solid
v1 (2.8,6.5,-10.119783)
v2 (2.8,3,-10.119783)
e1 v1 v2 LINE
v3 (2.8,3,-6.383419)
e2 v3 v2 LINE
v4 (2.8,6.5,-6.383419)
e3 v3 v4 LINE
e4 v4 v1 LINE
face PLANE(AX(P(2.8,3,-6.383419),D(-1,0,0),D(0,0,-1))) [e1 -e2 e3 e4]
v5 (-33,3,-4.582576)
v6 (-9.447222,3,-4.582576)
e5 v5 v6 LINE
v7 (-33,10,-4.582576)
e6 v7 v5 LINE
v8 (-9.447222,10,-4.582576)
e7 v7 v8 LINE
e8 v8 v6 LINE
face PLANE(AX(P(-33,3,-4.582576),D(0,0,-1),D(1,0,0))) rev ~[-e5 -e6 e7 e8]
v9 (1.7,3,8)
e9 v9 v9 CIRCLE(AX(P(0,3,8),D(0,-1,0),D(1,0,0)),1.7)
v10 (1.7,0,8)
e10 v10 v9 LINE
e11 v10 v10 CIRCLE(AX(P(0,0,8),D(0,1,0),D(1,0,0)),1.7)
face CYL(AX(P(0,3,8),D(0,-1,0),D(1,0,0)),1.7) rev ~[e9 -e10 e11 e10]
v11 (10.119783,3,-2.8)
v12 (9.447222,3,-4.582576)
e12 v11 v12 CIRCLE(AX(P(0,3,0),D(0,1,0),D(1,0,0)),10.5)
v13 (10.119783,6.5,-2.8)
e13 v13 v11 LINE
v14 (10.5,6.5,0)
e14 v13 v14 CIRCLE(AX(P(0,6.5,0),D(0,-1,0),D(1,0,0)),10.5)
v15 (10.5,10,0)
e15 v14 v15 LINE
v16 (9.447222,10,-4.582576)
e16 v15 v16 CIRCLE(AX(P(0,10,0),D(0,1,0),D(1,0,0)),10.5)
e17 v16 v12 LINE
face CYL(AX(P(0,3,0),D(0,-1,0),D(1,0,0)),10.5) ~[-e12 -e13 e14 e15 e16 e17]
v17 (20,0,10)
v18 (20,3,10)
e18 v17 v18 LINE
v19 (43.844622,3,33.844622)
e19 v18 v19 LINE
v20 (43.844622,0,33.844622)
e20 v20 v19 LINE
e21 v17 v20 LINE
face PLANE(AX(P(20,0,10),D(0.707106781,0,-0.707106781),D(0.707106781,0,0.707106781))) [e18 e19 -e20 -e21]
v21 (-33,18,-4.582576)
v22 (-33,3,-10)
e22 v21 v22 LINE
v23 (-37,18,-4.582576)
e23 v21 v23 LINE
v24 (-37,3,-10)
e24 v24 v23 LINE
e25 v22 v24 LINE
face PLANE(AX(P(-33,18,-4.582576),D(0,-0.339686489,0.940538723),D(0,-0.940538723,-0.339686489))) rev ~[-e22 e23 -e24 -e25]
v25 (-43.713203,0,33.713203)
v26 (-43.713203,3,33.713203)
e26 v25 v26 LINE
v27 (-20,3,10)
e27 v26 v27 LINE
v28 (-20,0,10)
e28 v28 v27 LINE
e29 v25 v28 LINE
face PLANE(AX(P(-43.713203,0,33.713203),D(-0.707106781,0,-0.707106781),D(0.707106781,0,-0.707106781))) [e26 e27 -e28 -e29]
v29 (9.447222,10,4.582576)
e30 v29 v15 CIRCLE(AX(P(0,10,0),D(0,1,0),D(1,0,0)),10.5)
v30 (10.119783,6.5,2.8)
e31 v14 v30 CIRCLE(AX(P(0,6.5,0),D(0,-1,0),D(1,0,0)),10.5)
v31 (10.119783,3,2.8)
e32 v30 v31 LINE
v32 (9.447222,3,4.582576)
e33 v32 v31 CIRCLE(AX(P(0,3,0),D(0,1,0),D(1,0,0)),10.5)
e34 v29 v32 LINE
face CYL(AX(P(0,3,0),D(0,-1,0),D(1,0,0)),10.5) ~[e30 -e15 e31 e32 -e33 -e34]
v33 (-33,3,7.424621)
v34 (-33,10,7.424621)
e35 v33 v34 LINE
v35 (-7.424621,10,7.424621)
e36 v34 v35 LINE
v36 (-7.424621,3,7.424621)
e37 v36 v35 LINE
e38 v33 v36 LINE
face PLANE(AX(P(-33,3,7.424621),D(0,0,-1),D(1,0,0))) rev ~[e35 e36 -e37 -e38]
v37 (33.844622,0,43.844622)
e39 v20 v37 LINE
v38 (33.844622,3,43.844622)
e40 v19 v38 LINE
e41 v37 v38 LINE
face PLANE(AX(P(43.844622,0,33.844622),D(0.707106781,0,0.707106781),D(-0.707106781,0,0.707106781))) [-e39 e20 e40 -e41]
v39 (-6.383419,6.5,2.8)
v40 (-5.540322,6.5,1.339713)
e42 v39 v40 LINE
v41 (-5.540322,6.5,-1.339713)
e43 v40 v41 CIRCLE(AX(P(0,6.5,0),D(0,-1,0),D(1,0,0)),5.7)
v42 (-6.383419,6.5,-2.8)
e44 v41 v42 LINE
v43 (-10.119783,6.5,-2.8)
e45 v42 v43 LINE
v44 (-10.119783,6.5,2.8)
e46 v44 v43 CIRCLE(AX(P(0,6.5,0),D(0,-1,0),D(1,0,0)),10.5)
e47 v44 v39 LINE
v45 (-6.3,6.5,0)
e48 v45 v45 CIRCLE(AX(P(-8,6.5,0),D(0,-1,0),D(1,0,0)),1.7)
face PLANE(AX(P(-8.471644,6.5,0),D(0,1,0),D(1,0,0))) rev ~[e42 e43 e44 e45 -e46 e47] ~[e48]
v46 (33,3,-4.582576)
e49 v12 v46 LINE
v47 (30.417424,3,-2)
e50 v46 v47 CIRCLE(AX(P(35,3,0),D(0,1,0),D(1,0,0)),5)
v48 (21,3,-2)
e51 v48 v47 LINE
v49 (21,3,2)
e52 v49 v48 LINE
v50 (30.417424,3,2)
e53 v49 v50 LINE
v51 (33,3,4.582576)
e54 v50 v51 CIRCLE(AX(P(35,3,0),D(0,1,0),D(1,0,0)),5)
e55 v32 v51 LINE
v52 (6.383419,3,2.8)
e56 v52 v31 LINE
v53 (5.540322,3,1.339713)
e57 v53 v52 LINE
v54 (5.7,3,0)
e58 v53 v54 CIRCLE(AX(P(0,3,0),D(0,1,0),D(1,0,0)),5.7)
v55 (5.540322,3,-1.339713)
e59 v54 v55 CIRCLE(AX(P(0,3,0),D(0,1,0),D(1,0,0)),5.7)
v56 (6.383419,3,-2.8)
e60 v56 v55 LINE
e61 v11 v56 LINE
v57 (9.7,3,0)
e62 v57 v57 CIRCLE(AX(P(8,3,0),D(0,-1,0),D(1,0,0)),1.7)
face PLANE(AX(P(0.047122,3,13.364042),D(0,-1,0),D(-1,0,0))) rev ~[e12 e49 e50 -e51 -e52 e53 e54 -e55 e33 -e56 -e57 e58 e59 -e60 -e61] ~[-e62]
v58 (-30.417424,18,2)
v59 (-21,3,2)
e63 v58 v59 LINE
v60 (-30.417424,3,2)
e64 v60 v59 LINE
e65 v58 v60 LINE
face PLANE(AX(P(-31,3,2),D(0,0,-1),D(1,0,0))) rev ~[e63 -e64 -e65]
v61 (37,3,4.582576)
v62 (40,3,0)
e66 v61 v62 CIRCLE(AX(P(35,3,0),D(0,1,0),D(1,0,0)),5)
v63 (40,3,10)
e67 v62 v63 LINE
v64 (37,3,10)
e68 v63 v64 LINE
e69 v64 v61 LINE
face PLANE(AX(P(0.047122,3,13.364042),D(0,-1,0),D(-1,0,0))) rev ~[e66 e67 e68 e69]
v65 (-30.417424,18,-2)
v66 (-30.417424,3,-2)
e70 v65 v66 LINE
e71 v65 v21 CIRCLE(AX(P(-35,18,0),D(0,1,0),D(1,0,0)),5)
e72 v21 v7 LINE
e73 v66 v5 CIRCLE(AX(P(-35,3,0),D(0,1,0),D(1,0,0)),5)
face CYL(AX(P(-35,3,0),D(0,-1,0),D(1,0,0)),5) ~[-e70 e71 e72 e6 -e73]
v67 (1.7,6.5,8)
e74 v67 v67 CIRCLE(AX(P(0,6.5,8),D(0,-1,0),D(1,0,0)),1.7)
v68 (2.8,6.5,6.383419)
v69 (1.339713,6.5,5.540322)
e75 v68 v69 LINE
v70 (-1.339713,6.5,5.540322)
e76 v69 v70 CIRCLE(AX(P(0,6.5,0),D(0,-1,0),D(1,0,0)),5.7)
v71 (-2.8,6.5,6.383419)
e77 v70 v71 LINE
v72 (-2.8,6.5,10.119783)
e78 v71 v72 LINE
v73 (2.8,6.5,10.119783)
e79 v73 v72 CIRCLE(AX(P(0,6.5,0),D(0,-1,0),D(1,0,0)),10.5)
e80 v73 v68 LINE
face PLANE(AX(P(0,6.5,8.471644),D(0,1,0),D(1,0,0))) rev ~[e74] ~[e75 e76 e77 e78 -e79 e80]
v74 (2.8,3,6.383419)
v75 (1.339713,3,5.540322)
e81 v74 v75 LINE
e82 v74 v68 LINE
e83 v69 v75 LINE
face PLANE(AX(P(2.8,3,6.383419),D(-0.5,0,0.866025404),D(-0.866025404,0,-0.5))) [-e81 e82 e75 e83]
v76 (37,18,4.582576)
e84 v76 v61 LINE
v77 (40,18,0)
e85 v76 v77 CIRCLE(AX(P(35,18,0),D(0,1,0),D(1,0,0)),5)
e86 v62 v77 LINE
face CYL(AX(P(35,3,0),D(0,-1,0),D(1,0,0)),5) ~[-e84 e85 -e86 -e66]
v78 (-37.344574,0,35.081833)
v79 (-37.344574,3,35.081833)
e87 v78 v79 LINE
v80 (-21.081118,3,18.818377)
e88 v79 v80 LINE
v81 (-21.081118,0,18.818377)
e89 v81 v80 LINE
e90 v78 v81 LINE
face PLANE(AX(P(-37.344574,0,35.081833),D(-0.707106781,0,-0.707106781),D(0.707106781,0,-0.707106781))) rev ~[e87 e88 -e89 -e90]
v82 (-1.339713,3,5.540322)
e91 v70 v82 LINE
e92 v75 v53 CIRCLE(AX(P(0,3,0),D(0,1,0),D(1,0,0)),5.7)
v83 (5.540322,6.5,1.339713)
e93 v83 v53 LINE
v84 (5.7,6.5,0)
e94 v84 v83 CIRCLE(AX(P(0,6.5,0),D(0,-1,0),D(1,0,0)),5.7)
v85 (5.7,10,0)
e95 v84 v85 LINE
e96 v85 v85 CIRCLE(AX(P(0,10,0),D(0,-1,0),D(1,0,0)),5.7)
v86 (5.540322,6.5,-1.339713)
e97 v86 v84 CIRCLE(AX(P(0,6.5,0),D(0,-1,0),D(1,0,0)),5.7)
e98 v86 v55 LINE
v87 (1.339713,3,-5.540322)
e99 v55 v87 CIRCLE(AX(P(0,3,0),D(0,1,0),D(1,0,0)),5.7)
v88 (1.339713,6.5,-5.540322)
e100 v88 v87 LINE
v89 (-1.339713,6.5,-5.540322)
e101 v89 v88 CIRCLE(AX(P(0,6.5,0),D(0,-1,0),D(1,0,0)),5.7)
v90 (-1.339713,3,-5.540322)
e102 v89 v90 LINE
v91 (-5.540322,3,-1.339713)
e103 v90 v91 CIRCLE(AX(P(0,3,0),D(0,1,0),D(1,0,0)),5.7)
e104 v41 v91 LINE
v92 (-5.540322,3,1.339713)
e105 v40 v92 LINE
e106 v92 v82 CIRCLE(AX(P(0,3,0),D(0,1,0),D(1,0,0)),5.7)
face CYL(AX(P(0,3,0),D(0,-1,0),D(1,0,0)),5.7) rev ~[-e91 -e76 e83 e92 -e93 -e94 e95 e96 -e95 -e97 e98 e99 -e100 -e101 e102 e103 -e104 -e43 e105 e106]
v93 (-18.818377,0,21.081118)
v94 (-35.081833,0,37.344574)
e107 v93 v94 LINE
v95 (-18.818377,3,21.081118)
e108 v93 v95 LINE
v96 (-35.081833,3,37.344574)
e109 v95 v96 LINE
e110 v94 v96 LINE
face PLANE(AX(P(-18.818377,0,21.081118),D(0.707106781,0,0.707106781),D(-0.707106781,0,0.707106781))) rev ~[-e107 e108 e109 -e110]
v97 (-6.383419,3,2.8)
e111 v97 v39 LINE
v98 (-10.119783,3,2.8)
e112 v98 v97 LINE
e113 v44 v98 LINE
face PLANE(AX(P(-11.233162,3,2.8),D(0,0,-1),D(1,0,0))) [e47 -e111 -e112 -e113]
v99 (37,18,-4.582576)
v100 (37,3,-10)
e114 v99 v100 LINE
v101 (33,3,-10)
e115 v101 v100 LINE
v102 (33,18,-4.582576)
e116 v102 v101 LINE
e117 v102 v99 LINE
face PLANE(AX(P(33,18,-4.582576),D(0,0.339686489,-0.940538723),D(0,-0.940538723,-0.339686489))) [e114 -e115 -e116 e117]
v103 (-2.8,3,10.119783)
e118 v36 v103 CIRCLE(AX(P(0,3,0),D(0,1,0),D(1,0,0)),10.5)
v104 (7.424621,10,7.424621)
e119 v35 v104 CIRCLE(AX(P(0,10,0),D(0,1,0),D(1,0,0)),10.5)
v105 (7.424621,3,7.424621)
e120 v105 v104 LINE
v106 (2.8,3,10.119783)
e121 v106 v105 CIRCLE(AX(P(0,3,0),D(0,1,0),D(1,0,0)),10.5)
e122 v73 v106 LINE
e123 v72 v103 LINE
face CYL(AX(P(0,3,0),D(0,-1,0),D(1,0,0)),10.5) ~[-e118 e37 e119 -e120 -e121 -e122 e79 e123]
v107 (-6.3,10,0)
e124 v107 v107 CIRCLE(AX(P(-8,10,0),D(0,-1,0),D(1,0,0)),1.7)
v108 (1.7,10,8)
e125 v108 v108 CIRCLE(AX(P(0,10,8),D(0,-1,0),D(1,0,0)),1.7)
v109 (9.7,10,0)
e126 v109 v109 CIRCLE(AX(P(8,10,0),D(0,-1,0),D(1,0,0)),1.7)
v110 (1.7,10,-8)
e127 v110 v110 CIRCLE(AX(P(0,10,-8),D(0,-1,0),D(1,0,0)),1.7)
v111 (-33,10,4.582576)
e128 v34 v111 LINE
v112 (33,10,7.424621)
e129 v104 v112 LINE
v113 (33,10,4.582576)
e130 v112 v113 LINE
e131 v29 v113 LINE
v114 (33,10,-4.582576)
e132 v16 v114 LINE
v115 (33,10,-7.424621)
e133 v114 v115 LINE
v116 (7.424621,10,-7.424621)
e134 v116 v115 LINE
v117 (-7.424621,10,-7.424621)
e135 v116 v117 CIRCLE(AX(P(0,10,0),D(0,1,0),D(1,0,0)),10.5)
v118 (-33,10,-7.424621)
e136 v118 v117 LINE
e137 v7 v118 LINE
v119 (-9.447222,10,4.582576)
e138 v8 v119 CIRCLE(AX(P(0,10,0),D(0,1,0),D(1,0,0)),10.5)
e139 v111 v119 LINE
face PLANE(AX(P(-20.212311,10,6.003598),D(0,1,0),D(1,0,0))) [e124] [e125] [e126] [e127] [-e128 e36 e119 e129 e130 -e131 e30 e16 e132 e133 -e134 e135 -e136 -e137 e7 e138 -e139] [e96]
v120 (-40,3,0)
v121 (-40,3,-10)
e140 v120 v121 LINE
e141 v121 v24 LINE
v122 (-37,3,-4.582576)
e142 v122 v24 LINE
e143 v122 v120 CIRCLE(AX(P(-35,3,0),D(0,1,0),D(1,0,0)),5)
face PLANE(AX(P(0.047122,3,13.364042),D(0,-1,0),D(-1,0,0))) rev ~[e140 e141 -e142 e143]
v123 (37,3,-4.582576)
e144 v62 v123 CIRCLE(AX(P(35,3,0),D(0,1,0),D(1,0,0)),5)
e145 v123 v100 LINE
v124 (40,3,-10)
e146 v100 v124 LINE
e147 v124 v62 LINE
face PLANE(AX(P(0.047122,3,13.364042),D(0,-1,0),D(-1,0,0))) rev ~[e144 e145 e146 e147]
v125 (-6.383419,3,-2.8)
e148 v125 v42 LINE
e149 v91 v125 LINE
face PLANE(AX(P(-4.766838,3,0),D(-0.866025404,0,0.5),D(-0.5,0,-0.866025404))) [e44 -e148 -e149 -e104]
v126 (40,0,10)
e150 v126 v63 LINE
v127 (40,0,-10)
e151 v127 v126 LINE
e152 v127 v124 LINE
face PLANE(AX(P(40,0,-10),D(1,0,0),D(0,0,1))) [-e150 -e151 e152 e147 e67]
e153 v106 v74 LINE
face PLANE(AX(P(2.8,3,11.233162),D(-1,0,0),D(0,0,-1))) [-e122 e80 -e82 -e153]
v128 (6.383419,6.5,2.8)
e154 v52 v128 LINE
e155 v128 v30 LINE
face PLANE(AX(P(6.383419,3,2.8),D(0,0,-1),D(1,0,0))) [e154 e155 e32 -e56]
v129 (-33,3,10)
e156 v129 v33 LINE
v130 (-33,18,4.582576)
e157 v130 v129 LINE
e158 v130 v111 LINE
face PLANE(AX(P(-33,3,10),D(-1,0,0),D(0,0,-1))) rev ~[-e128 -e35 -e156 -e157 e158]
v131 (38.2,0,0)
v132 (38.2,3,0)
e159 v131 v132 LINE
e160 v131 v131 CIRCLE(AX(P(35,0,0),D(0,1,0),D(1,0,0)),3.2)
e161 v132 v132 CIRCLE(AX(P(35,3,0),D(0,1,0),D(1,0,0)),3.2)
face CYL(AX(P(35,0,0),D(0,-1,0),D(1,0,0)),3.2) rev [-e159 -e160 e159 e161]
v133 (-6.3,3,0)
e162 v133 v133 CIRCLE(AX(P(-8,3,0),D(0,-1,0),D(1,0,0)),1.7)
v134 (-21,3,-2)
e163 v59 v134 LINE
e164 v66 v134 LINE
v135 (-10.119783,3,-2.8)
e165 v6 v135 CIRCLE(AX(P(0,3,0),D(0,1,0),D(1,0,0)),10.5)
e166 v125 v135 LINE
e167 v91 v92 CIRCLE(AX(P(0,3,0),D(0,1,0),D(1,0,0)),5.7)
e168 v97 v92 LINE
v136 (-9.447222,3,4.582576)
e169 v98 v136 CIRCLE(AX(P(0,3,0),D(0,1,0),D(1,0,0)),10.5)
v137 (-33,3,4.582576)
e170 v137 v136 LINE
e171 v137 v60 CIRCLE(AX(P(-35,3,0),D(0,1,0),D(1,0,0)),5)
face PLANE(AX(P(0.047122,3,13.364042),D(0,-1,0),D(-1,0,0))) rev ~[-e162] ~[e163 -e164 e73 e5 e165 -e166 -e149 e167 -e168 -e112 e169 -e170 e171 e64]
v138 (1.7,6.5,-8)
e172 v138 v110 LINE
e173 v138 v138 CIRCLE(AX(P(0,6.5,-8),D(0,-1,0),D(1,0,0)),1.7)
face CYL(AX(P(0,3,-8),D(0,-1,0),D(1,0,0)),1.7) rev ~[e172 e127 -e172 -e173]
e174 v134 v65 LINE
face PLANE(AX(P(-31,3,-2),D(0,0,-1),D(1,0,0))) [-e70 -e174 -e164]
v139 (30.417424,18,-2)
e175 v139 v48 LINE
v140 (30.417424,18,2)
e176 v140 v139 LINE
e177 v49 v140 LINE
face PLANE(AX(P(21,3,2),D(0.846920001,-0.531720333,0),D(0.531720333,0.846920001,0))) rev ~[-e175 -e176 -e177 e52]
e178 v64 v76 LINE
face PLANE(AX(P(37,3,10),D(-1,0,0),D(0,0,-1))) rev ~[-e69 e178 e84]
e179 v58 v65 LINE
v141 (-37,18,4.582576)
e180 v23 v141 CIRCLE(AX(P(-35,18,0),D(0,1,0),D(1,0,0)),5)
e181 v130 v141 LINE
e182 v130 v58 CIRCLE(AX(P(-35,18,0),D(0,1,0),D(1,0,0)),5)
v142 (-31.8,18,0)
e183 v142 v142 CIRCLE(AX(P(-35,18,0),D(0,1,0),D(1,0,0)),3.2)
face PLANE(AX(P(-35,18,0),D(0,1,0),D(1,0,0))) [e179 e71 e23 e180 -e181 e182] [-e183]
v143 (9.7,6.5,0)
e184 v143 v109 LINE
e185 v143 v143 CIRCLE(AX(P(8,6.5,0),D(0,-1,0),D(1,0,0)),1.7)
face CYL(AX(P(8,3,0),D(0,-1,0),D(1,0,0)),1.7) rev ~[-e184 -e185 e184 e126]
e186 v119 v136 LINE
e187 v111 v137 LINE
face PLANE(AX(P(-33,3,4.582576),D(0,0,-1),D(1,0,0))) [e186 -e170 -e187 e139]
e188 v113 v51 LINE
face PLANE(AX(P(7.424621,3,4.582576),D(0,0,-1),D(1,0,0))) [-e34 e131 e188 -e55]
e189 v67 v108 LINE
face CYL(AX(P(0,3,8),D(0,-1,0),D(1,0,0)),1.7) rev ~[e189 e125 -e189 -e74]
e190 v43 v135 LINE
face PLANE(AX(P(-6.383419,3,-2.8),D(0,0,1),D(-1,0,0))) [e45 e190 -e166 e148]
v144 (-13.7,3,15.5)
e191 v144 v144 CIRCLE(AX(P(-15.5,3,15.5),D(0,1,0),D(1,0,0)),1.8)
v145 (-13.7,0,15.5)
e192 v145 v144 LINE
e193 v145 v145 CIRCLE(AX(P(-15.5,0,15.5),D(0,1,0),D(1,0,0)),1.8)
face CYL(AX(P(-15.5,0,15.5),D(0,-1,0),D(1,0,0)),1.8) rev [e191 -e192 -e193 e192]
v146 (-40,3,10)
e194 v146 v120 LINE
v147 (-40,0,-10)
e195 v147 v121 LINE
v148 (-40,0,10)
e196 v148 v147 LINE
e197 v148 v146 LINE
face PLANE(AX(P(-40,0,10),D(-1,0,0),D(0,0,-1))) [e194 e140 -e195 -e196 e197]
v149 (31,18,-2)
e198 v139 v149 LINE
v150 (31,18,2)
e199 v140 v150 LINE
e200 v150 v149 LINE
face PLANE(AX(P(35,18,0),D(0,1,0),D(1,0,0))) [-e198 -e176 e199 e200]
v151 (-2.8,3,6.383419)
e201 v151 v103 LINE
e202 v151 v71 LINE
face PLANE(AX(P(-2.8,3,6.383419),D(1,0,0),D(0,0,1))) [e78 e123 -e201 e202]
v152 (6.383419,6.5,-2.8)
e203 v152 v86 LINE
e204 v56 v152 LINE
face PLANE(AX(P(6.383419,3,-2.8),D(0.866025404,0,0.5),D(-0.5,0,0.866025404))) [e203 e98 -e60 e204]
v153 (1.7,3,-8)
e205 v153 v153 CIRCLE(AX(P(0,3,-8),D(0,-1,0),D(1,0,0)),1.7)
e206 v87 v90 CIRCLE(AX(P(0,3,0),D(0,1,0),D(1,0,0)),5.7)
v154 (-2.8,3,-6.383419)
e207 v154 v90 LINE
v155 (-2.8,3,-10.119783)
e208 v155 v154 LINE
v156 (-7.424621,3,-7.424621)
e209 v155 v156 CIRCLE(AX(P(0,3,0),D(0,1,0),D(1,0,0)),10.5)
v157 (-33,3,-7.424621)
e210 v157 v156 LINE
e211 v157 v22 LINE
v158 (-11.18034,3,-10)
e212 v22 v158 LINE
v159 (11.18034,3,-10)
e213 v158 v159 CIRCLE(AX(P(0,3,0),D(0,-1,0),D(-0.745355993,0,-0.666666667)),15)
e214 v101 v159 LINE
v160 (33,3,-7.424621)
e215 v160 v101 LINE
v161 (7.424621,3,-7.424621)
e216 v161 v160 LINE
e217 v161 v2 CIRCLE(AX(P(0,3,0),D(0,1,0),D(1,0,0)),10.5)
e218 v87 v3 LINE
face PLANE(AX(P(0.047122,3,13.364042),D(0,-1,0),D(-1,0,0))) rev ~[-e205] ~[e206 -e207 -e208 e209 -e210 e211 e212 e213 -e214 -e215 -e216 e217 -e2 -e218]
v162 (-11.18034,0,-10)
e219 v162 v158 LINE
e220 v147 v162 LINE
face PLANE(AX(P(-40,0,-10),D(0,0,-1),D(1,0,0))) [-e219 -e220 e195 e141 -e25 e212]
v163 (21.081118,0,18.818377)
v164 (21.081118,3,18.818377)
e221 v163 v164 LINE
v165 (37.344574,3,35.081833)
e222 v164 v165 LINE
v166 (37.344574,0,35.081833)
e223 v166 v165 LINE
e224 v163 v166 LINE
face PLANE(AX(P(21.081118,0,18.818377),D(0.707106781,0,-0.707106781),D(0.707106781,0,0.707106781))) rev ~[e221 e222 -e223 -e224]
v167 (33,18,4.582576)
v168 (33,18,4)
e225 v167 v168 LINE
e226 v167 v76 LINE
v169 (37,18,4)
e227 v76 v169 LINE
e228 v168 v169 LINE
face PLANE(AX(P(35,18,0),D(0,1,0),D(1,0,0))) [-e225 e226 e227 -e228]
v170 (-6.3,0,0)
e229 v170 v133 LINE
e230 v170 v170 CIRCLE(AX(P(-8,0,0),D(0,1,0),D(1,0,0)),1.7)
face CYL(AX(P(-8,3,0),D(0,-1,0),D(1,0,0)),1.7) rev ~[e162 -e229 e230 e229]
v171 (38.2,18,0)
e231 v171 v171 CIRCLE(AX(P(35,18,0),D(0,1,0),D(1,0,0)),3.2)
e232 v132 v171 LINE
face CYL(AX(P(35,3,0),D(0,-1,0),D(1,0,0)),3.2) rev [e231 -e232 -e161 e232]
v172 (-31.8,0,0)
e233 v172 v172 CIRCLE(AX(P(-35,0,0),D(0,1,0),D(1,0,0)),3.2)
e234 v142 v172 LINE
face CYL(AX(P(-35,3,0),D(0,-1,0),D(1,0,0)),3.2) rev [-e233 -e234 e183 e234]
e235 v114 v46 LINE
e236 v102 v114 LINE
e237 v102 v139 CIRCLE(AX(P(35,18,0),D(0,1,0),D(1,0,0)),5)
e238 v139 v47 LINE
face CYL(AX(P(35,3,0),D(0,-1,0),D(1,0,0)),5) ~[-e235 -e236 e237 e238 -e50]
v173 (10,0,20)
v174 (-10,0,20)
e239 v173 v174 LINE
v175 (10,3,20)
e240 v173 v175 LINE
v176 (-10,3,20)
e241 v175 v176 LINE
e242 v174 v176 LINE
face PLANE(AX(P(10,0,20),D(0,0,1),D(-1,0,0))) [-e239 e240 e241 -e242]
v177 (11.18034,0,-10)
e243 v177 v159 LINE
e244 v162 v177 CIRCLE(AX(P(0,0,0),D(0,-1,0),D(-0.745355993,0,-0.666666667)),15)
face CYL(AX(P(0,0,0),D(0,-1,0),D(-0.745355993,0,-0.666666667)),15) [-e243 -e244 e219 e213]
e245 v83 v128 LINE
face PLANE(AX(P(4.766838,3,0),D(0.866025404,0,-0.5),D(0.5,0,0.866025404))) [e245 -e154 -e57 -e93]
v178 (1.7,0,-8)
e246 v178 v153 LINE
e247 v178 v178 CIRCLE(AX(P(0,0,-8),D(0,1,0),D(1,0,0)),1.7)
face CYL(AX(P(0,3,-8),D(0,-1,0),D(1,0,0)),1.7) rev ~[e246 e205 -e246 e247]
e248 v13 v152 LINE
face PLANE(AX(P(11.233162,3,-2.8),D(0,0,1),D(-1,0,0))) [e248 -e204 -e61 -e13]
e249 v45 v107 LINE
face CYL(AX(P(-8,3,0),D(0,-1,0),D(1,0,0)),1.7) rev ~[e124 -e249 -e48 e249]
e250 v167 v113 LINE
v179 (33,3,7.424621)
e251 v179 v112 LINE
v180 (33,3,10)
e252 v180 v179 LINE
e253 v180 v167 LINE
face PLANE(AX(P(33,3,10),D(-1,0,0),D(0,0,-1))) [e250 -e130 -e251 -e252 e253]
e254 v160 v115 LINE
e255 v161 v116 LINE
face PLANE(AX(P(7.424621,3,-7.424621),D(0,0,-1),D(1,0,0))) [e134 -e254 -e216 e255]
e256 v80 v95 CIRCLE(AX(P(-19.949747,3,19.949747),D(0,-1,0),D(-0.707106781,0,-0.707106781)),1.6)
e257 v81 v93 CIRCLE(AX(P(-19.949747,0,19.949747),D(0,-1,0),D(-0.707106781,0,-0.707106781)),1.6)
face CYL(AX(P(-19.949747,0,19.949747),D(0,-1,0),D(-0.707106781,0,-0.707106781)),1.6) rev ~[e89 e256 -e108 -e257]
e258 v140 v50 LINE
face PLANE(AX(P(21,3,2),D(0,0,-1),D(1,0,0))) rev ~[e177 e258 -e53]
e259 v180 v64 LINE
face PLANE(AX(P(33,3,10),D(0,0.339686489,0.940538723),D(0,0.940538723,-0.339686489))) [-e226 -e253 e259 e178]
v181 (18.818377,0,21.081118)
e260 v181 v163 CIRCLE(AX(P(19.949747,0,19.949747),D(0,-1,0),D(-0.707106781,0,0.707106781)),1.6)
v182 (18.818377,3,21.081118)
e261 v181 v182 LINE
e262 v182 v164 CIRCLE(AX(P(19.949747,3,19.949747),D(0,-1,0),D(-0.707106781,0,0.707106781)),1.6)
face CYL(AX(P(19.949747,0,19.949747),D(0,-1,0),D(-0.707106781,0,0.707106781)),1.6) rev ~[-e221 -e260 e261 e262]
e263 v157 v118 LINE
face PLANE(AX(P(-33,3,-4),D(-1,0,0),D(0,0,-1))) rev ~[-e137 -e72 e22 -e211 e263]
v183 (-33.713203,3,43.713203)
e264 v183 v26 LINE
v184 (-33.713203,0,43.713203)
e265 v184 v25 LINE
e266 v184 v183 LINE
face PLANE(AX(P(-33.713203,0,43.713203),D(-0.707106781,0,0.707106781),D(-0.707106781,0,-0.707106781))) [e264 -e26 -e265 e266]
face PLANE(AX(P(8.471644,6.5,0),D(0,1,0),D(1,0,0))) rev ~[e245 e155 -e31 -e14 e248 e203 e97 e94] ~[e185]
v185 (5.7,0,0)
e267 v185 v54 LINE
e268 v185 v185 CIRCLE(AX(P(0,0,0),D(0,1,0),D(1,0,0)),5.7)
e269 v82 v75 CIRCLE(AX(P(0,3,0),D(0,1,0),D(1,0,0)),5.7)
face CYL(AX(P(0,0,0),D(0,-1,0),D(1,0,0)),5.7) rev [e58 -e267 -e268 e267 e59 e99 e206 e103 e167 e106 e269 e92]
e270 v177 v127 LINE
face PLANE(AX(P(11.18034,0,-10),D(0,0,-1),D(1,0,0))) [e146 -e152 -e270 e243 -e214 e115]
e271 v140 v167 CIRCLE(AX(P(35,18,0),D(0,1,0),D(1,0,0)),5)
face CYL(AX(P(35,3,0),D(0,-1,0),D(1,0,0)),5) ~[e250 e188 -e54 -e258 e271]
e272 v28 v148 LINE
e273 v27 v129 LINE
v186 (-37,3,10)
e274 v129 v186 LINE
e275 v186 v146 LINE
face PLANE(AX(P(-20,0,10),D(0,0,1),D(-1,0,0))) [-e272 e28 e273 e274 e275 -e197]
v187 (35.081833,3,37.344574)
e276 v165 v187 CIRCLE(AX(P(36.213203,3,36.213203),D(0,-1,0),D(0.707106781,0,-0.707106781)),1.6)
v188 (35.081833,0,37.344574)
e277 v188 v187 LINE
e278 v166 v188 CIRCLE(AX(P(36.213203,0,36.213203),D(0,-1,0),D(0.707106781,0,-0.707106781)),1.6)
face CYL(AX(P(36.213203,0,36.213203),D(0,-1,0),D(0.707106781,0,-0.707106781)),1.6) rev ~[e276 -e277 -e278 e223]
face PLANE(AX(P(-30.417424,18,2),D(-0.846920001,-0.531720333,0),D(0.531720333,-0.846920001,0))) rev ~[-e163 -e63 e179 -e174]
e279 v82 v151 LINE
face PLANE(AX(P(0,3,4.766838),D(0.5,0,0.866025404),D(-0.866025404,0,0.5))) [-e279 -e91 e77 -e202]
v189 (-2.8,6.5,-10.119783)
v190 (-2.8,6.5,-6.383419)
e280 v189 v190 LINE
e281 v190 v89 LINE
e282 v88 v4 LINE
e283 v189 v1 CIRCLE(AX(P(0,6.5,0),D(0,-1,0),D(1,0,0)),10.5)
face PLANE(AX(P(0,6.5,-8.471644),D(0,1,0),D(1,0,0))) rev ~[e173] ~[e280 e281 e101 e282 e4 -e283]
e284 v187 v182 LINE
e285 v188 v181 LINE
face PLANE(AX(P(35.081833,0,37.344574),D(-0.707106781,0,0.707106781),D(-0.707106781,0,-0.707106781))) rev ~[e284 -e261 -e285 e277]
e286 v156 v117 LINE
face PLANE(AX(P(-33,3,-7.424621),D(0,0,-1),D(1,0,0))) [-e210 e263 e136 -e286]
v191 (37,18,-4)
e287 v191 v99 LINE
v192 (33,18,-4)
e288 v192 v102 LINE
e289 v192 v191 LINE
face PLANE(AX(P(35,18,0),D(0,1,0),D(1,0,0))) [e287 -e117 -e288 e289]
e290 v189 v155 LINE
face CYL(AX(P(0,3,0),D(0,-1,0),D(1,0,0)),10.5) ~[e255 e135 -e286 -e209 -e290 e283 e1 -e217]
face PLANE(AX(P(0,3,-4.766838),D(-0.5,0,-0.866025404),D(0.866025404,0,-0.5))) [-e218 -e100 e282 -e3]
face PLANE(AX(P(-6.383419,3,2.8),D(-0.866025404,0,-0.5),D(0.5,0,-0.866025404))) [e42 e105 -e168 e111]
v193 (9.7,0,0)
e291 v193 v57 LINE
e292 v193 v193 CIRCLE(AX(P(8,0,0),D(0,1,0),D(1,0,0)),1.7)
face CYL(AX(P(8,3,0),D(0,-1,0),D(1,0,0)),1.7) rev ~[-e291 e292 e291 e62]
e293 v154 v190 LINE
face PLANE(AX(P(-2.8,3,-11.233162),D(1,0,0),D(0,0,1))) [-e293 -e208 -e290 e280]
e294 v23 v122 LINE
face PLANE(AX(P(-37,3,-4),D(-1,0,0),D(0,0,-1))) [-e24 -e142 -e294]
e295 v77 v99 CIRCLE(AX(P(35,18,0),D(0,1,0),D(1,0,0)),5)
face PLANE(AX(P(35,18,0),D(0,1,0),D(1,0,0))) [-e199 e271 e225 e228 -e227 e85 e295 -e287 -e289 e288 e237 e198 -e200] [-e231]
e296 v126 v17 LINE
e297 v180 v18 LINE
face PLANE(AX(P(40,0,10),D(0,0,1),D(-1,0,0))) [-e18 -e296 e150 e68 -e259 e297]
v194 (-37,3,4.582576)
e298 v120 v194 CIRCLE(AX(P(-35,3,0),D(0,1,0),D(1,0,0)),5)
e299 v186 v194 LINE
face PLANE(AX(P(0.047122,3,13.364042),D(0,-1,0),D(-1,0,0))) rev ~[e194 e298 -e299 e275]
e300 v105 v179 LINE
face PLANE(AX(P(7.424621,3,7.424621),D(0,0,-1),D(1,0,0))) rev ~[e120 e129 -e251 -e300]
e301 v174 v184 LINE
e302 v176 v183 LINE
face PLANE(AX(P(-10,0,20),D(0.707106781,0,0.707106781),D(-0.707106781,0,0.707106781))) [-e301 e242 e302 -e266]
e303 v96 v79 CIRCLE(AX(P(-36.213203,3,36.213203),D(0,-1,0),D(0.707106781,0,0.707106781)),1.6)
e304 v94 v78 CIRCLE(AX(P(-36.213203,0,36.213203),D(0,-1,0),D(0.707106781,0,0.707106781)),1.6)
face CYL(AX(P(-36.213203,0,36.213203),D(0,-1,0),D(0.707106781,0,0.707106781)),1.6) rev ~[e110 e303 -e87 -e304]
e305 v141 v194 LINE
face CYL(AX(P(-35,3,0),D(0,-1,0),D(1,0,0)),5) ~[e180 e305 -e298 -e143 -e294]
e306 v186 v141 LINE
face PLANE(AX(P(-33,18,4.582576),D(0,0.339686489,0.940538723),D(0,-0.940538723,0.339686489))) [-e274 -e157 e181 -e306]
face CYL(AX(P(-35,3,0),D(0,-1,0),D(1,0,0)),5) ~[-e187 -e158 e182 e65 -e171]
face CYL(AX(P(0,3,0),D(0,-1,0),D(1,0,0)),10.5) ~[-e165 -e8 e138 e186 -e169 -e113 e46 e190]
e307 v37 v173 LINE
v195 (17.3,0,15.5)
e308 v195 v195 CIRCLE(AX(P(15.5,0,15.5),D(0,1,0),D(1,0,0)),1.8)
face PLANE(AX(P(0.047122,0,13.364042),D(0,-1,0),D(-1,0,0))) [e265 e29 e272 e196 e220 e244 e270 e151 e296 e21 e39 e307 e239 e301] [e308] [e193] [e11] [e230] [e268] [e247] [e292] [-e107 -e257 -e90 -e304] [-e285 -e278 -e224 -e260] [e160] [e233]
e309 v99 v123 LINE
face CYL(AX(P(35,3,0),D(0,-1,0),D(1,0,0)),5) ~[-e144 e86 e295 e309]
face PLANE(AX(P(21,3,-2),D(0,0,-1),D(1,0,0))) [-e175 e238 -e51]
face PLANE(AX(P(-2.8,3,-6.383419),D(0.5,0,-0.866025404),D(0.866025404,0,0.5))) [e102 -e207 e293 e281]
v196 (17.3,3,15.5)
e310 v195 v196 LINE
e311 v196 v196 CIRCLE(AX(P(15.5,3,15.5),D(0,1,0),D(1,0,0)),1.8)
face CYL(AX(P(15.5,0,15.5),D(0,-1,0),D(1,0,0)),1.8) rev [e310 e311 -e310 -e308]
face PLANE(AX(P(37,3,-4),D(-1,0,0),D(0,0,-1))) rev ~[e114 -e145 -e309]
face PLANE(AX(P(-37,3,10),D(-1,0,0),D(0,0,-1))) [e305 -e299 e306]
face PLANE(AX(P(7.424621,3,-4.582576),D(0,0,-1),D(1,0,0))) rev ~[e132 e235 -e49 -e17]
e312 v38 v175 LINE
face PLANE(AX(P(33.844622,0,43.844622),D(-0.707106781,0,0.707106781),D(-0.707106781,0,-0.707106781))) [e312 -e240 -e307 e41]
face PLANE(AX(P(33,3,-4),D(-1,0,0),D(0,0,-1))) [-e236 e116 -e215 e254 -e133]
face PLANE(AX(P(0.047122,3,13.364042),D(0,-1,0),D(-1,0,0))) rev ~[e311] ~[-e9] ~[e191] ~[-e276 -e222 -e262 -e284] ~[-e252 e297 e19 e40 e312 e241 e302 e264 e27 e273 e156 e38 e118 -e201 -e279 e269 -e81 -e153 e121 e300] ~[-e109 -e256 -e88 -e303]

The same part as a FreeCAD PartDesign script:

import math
import FreeCAD as App
import Part
import Sketcher
Q = App.Units.Quantity


def add_polygon(sketch, points):
    """Adds a closed chain of lines whose ends are joined by coincident constraints."""
    first, n = sketch.GeometryCount, len(points)
    for a, b in zip(points, points[1:] + points[:1]):
        sketch.addGeometry(Part.LineSegment(App.Vector(*a, 0), App.Vector(*b, 0)), False)
    for i in range(n):
        sketch.addConstraint(Sketcher.Constraint("Coincident", first + i, 2, first + (i + 1) % n, 1))

doc = App.newDocument("Part")
body = doc.addObject("PartDesign::Body", "Body")

# Sketch on XZ plane
sketch1 = body.newObject("Sketcher::SketchObject", "Sketch")
sketch1.AttachmentSupport = (doc.getObject("XZ_Plane"), [""])
sketch1.MapMode = "FlatFace"
sketch1.addGeometry([
    Part.LineSegment(App.Vector(-40, -10, 0), App.Vector(-40, 10, 0)),  # 0
    Part.LineSegment(App.Vector(-40, 10, 0), App.Vector(-20, 10, 0)),  # 1
    Part.LineSegment(App.Vector(-20, 10, 0), App.Vector(-43.7, 33.7, 0)),  # 2
    Part.LineSegment(App.Vector(-43.7, 33.7, 0), App.Vector(-33.7, 43.7, 0)),  # 3
    Part.LineSegment(App.Vector(-33.7, 43.7, 0), App.Vector(-10, 20, 0)),  # 4
    Part.LineSegment(App.Vector(-10, 20, 0), App.Vector(10, 20, 0)),  # 5
    Part.LineSegment(App.Vector(10, 20, 0), App.Vector(33.8, 43.8, 0)),  # 6
    Part.LineSegment(App.Vector(33.8, 43.8, 0), App.Vector(43.8, 33.8, 0)),  # 7
    Part.LineSegment(App.Vector(43.8, 33.8, 0), App.Vector(20, 10, 0)),  # 8
    Part.LineSegment(App.Vector(20, 10, 0), App.Vector(40, 10, 0)),  # 9
    Part.LineSegment(App.Vector(40, 10, 0), App.Vector(40, -10, 0)),  # 10
    Part.LineSegment(App.Vector(40, -10, 0), App.Vector(11.2, -10, 0)),  # 11
    Part.ArcOfCircle(Part.Circle(App.Vector(0, 0, 0), App.Vector(0, 0, 1), 15), math.radians(-138), math.radians(-42)),  # 12
    Part.LineSegment(App.Vector(-11.2, -10, 0), App.Vector(-40, -10, 0)),  # 13
    Part.LineSegment(App.Vector(21.1, 18.8, 0), App.Vector(37.3, 35.1, 0)),  # 14
    Part.ArcOfCircle(Part.Circle(App.Vector(36.2, 36.2, 0), App.Vector(0, 0, 1), 1.6), math.radians(-45), math.radians(135)),  # 15
    Part.LineSegment(App.Vector(35.1, 37.3, 0), App.Vector(18.8, 21.1, 0)),  # 16
    Part.ArcOfCircle(Part.Circle(App.Vector(19.9, 19.9, 0), App.Vector(0, 0, 1), 1.6), math.radians(135), math.radians(315)),  # 17
    Part.Circle(App.Vector(15.5, 15.5, 0), App.Vector(0, 0, 1), 1.8),  # 18
    Part.LineSegment(App.Vector(-18.8, 21.1, 0), App.Vector(-35.1, 37.3, 0)),  # 19
    Part.ArcOfCircle(Part.Circle(App.Vector(-36.2, 36.2, 0), App.Vector(0, 0, 1), 1.6), math.radians(45), math.radians(225)),  # 20
    Part.LineSegment(App.Vector(-37.3, 35.1, 0), App.Vector(-21.1, 18.8, 0)),  # 21
    Part.ArcOfCircle(Part.Circle(App.Vector(-19.9, 19.9, 0), App.Vector(0, 0, 1), 1.6), math.radians(-135), math.radians(45)),  # 22
    Part.Circle(App.Vector(-15.5, 15.5, 0), App.Vector(0, 0, 1), 1.8),  # 23
    Part.Circle(App.Vector(0, 8, 0), App.Vector(0, 0, 1), 1.7),  # 24
    Part.Circle(App.Vector(35, 0, 0), App.Vector(0, 0, 1), 3.2),  # 25
    Part.Circle(App.Vector(8, 0, 0), App.Vector(0, 0, 1), 1.7),  # 26
    Part.Circle(App.Vector(0, 0, 0), App.Vector(0, 0, 1), 5.7),  # 27
    Part.Circle(App.Vector(0, -8, 0), App.Vector(0, 0, 1), 1.7),  # 28
    Part.Circle(App.Vector(-8, 0, 0), App.Vector(0, 0, 1), 1.7),  # 29
    Part.Circle(App.Vector(-35, 0, 0), App.Vector(0, 0, 1), 3.2),  # 30
], False)
sketch1.addConstraint([
    Sketcher.Constraint("Coincident", 0, 2, 1, 1),
    Sketcher.Constraint("Coincident", 1, 2, 2, 1),
    Sketcher.Constraint("Coincident", 2, 2, 3, 1),
    Sketcher.Constraint("Coincident", 3, 2, 4, 1),
    Sketcher.Constraint("Coincident", 4, 2, 5, 1),
    Sketcher.Constraint("Coincident", 5, 2, 6, 1),
    Sketcher.Constraint("Coincident", 6, 2, 7, 1),
    Sketcher.Constraint("Coincident", 7, 2, 8, 1),
    Sketcher.Constraint("Coincident", 8, 2, 9, 1),
    Sketcher.Constraint("Coincident", 9, 2, 10, 1),
    Sketcher.Constraint("Coincident", 10, 2, 11, 1),
    Sketcher.Constraint("Coincident", 11, 2, 12, 2),
    Sketcher.Constraint("Coincident", 12, 1, 13, 1),
    Sketcher.Constraint("Coincident", 13, 2, 0, 1),
    Sketcher.Constraint("Tangent", 14, 2, 15, 1),
    Sketcher.Constraint("Tangent", 15, 2, 16, 1),
    Sketcher.Constraint("Tangent", 16, 2, 17, 1),
    Sketcher.Constraint("Tangent", 17, 2, 14, 1),
    Sketcher.Constraint("Tangent", 19, 2, 20, 1),
    Sketcher.Constraint("Tangent", 20, 2, 21, 1),
    Sketcher.Constraint("Tangent", 21, 2, 22, 1),
    Sketcher.Constraint("Tangent", 22, 2, 19, 1),
    Sketcher.Constraint("Vertical", 0),
    Sketcher.Constraint("Horizontal", 1),
    Sketcher.Constraint("Horizontal", 5),
    Sketcher.Constraint("Horizontal", 9),
    Sketcher.Constraint("Vertical", 10),
    Sketcher.Constraint("Horizontal", 11),
    Sketcher.Constraint("Horizontal", 13),
    Sketcher.Constraint("Coincident", 12, 3, -1, 1),
    Sketcher.Constraint("Coincident", 27, 3, -1, 1),
    Sketcher.Constraint("Equal", 15, 17),
    Sketcher.Constraint("Equal", 17, 20),
    Sketcher.Constraint("Equal", 20, 22),
    Sketcher.Constraint("Equal", 18, 23),
    Sketcher.Constraint("Equal", 24, 26),
    Sketcher.Constraint("Equal", 26, 28),
    Sketcher.Constraint("Equal", 28, 29),
    Sketcher.Constraint("Equal", 25, 30),
    Sketcher.Constraint("Symmetric", 24, 3, 28, 3, -1, 1),
    Sketcher.Constraint("Symmetric", 26, 3, 29, 3, -1, 1),
    Sketcher.Constraint("Symmetric", 25, 3, 30, 3, -1, 1),
    Sketcher.Constraint("Symmetric", 0, 2, 10, 2, -1, 1),
    Sketcher.Constraint("Symmetric", 15, 3, 20, 3, -2),
    Sketcher.Constraint("Symmetric", 17, 3, 22, 3, -2),
    Sketcher.Constraint("Symmetric", 18, 3, 23, 3, -2),
    Sketcher.Constraint("Symmetric", 1, 2, 8, 2, -2),
    Sketcher.Constraint("PointOnObject", 24, 3, -2),
    Sketcher.Constraint("PointOnObject", 25, 3, -1),
    Sketcher.Constraint("PointOnObject", 26, 3, -1),
    Sketcher.Constraint("Perpendicular", 2, 3),
    Sketcher.Constraint("Perpendicular", 3, 4),
    Sketcher.Constraint("Perpendicular", 4, 6),
    Sketcher.Constraint("Perpendicular", 6, 7),
    Sketcher.Constraint("Perpendicular", 7, 8),
    Sketcher.Constraint("Parallel", 8, 14),
    Sketcher.Constraint("Perpendicular", 16, 19),
    Sketcher.Constraint("Horizontal", 11, 2, 12, 1),
    Sketcher.Constraint("Equal", 1, 5),
    Sketcher.Constraint("Equal", 9, 0),
    Sketcher.Constraint("Equal", 2, 4),
    Sketcher.Constraint("Equal", 3, 7),
    Sketcher.Constraint("Radius", 12, 15.0),
    Sketcher.Constraint("Diameter", 18, 3.6),
    Sketcher.Constraint("Diameter", 24, 3.4),
    Sketcher.Constraint("Diameter", 25, 6.4),
    Sketcher.Constraint("Diameter", 27, 11.4),
    Sketcher.Constraint("Radius", 15, 1.6),
    Sketcher.Constraint("DistanceX", 1, 1, 1, 2, 20.0),
    Sketcher.Constraint("Distance", 14, 23.0),
    Sketcher.Constraint("DistanceY", -1, 1, 24, 3, 8.0),
    Sketcher.Constraint("DistanceX", -1, 1, 25, 3, 35.0),
    Sketcher.Constraint("DistanceX", -1, 1, 26, 3, 8.0),
    Sketcher.Constraint("DistanceX", 0, 2, -1, 1, 40.0),
    Sketcher.Constraint("DistanceX", 23, 3, 18, 3, 31.0),
    Sketcher.Constraint("DistanceY", -1, 1, 18, 3, 15.5),
    Sketcher.Constraint("DistanceX", 2, 2, 20, 3, 7.5),
    Sketcher.Constraint("DistanceY", 2, 2, 20, 3, 2.5),
    Sketcher.Constraint("Distance", 6, 33.721388),
    Sketcher.Constraint("DistanceY", -1, 1, 16, 2, 21.081118),
])
pad1 = body.newObject("PartDesign::Pad", "Pad")
pad1.Profile = sketch1
pad1.Length = 3
pad1.Reversed = True

# Sketch on XZ plane
sketch2 = body.newObject("Sketcher::SketchObject", "Sketch001")
sketch2.AttachmentSupport = (doc.getObject("XZ_Plane"), [""])
sketch2.MapMode = "FlatFace"
sketch2.AttachmentOffset = App.Placement(App.Vector(0, 0, -3), App.Rotation())
sketch2.addGeometry(Part.Circle(App.Vector(0, 0, 0), App.Vector(0, 0, 1), 10), False)
sketch2.addConstraint([
    Sketcher.Constraint("Coincident", 0, 3, -1, 1),
    Sketcher.Constraint("Diameter", 0, 21.0),
])
pad2 = body.newObject("PartDesign::Pad", "Pad001")
pad2.Profile = sketch2
pad2.Length = 7
pad2.Reversed = True

# Sketch on XZ plane
sketch3 = body.newObject("Sketcher::SketchObject", "Sketch002")
sketch3.AttachmentSupport = (doc.getObject("XZ_Plane"), [""])
sketch3.MapMode = "FlatFace"
sketch3.AttachmentOffset = App.Placement(App.Vector(0, 0, -3), App.Rotation())
sketch3.addGeometry([
    Part.Circle(App.Vector(0, -8, 0), App.Vector(0, 0, 1), 1.7),
    Part.Circle(App.Vector(-8, 0, 0), App.Vector(0, 0, 1), 1.7),
    Part.Circle(App.Vector(8, 0, 0), App.Vector(0, 0, 1), 1.7),
    Part.Circle(App.Vector(0, 8, 0), App.Vector(0, 0, 1), 1.7),
], False)
sketch3.addConstraint([
    Sketcher.Constraint("Equal", 0, 1),
    Sketcher.Constraint("Equal", 1, 2),
    Sketcher.Constraint("Equal", 2, 3),
    Sketcher.Constraint("Symmetric", 1, 3, 2, 3, -1, 1),
    Sketcher.Constraint("Symmetric", 0, 3, 3, 3, -1, 1),
    Sketcher.Constraint("PointOnObject", 0, 3, -2),
    Sketcher.Constraint("PointOnObject", 1, 3, -1),
    Sketcher.Constraint("Diameter", 0, 3.4),
    Sketcher.Constraint("DistanceY", 0, 3, -1, 1, 8.0),
    Sketcher.Constraint("DistanceX", 1, 3, -1, 1, 8.0),
])
pocket1 = body.newObject("PartDesign::Pocket", "Pocket")
pocket1.Profile = sketch3
pocket1.Length = 7

# Sketch on XZ plane
sketch4 = body.newObject("Sketcher::SketchObject", "Sketch003")
sketch4.AttachmentSupport = (doc.getObject("XZ_Plane"), [""])
sketch4.MapMode = "FlatFace"
sketch4.AttachmentOffset = App.Placement(App.Vector(0, 0, -3), App.Rotation())
add_polygon(sketch4, [(-4.8, 0), (-6.4, -2.8), (-11.2, -2.8), (-11.2, 2.8), (-6.4, 2.8)])  # lines 0-4
add_polygon(sketch4, [(4.8, 0), (6.4, 2.8), (11.2, 2.8), (11.2, -2.8), (6.4, -2.8)])  # lines 5-9
add_polygon(sketch4, [(-2.8, -11.2), (-2.8, -6.4), (0, -4.8), (2.8, -6.4), (2.8, -11.2)])  # lines 10-14
add_polygon(sketch4, [(0, 4.8), (-2.8, 6.4), (-2.8, 11.2), (2.8, 11.2), (2.8, 6.4)])  # lines 15-19
sketch4.addConstraint([
    Sketcher.Constraint("Horizontal", 1),
    Sketcher.Constraint("Vertical", 2),
    Sketcher.Constraint("Horizontal", 3),
    Sketcher.Constraint("Horizontal", 6),
    Sketcher.Constraint("Vertical", 7),
    Sketcher.Constraint("Horizontal", 8),
    Sketcher.Constraint("Vertical", 10),
    Sketcher.Constraint("Vertical", 13),
    Sketcher.Constraint("Horizontal", 14),
    Sketcher.Constraint("Vertical", 16),
    Sketcher.Constraint("Horizontal", 17),
    Sketcher.Constraint("Vertical", 18),
    Sketcher.Constraint("Symmetric", 0, 2, 5, 2, -1, 1),
    Sketcher.Constraint("Symmetric", 2, 2, 7, 2, -1, 1),
    Sketcher.Constraint("Symmetric", 4, 2, 9, 2, -1, 1),
    Sketcher.Constraint("Symmetric", 12, 2, 15, 2, -1, 1),
    Sketcher.Constraint("Symmetric", 14, 2, 17, 2, -1, 1),
    Sketcher.Constraint("Symmetric", 11, 2, 19, 2, -1, 1),
    Sketcher.Constraint("Symmetric", 3, 2, 5, 2, -2),
    Sketcher.Constraint("Symmetric", 10, 2, 12, 2, -2),
    Sketcher.Constraint("PointOnObject", 4, 2, -1),
    Sketcher.Constraint("PointOnObject", 11, 2, -2),
    Sketcher.Constraint("Parallel", 4, 9),
    Sketcher.Constraint("Perpendicular", 9, 11),
    Sketcher.Constraint("Parallel", 11, 19),
    Sketcher.Constraint("Equal", 17, 2),
    Sketcher.Constraint("Equal", 8, 10),
    Sketcher.Constraint("Angle", 0, Q("-120 deg")),
    Sketcher.Constraint("DistanceX", 14, 2, 14, 1, 5.6),
    Sketcher.Constraint("DistanceX", 4, 2, 6, 2, 16.0),
    Sketcher.Constraint("DistanceX", 1, 2, 1, 1, 4.849742),
    Sketcher.Constraint("DistanceY", 10, 2, -1, 1, 6.383419),
])
pocket2 = body.newObject("PartDesign::Pocket", "Pocket001")
pocket2.Profile = sketch4
pocket2.Length = 3.5

# Sketch on XZ plane
sketch5 = body.newObject("Sketcher::SketchObject", "Sketch004")
sketch5.AttachmentSupport = (doc.getObject("XZ_Plane"), [""])
sketch5.MapMode = "FlatFace"
sketch5.AttachmentOffset = App.Placement(App.Vector(0, 0, -3), App.Rotation())
sketch5.addGeometry(Part.Circle(App.Vector(0, 0, 0), App.Vector(0, 0, 1), 6), False)
sketch5.addConstraint([
    Sketcher.Constraint("Coincident", 0, 3, -1, 1),
    Sketcher.Constraint("Diameter", 0, 11.4),
])
pocket3 = body.newObject("PartDesign::Pocket", "Pocket002")
pocket3.Profile = sketch5
pocket3.Length = 20

# Sketch on XZ plane
sketch6 = body.newObject("Sketcher::SketchObject", "Sketch005")
sketch6.AttachmentSupport = (doc.getObject("XZ_Plane"), [""])
sketch6.MapMode = "FlatFace"
sketch6.AttachmentOffset = App.Placement(App.Vector(0, 0, -3), App.Rotation())
sketch6.addGeometry([
    Part.Circle(App.Vector(-35, 0, 0), App.Vector(0, 0, 1), 5),
    Part.Circle(App.Vector(-35, 0, 0), App.Vector(0, 0, 1), 3.2),
    Part.Circle(App.Vector(35, 0, 0), App.Vector(0, 0, 1), 5),
    Part.Circle(App.Vector(35, 0, 0), App.Vector(0, 0, 1), 3.2),
], False)
sketch6.addConstraint([
    Sketcher.Constraint("Coincident", 1, 3, 0, 3),
    Sketcher.Constraint("Coincident", 3, 3, 2, 3),
    Sketcher.Constraint("Equal", 0, 2),
    Sketcher.Constraint("Equal", 1, 3),
    Sketcher.Constraint("Symmetric", 0, 3, 2, 3, -1, 1),
    Sketcher.Constraint("PointOnObject", 0, 3, -1),
    Sketcher.Constraint("Diameter", 0, 10.0),
    Sketcher.Constraint("Diameter", 1, 6.4),
    Sketcher.Constraint("DistanceX", 0, 3, -1, 1, 35.0),
])
pad3 = body.newObject("PartDesign::Pad", "Pad002")
pad3.Profile = sketch6
pad3.Length = 15
pad3.Reversed = True

# Sketch on XZ plane
sketch7 = body.newObject("Sketcher::SketchObject", "Sketch006")
sketch7.AttachmentSupport = (doc.getObject("XZ_Plane"), [""])
sketch7.MapMode = "FlatFace"
sketch7.AttachmentOffset = App.Placement(App.Vector(0, 0, -3), App.Rotation())
add_polygon(sketch7, [(-31, -2), (-31, 2), (-21, 2), (-21, -2)])  # lines 0-3
add_polygon(sketch7, [(-37, -10), (-37, -4), (-33, -4), (-33, -10)])  # lines 4-7
add_polygon(sketch7, [(-37, 4), (-37, 10), (-33, 10), (-33, 4)])  # lines 8-11
add_polygon(sketch7, [(21, -2), (21, 2), (31, 2), (31, -2)])  # lines 12-15
add_polygon(sketch7, [(33, -10), (33, -4), (37, -4), (37, -10)])  # lines 16-19
add_polygon(sketch7, [(33, 4), (33, 10), (37, 10), (37, 4)])  # lines 20-23
sketch7.addConstraint([
    Sketcher.Constraint("Vertical", 0),
    Sketcher.Constraint("Horizontal", 1),
    Sketcher.Constraint("Vertical", 2),
    Sketcher.Constraint("Horizontal", 3),
    Sketcher.Constraint("Vertical", 4),
    Sketcher.Constraint("Horizontal", 5),
    Sketcher.Constraint("Vertical", 6),
    Sketcher.Constraint("Horizontal", 7),
    Sketcher.Constraint("Vertical", 8),
    Sketcher.Constraint("Horizontal", 9),
    Sketcher.Constraint("Vertical", 10),
    Sketcher.Constraint("Horizontal", 11),
    Sketcher.Constraint("Vertical", 12),
    Sketcher.Constraint("Horizontal", 13),
    Sketcher.Constraint("Vertical", 14),
    Sketcher.Constraint("Horizontal", 15),
    Sketcher.Constraint("Vertical", 16),
    Sketcher.Constraint("Horizontal", 17),
    Sketcher.Constraint("Vertical", 18),
    Sketcher.Constraint("Horizontal", 19),
    Sketcher.Constraint("Vertical", 20),
    Sketcher.Constraint("Horizontal", 21),
    Sketcher.Constraint("Vertical", 22),
    Sketcher.Constraint("Horizontal", 23),
    Sketcher.Constraint("Symmetric", 2, 2, 12, 2, -1, 1),
    Sketcher.Constraint("Symmetric", 0, 2, 14, 2, -1, 1),
    Sketcher.Constraint("Symmetric", 10, 2, 16, 2, -1, 1),
    Sketcher.Constraint("Symmetric", 8, 2, 18, 2, -1, 1),
    Sketcher.Constraint("Symmetric", 6, 2, 20, 2, -1, 1),
    Sketcher.Constraint("Symmetric", 4, 2, 22, 2, -1, 1),
    Sketcher.Constraint("Symmetric", 5, 2, 16, 2, -2),
    Sketcher.Constraint("Symmetric", 7, 2, 18, 2, -2),
    Sketcher.Constraint("Horizontal", 1, 2, 12, 2),
    Sketcher.Constraint("Equal", 23, 0),
    Sketcher.Constraint("DistanceX", 1, 1, 1, 2, 10.0),
    Sketcher.Constraint("DistanceX", 5, 1, 5, 2, 4.0),
    Sketcher.Constraint("DistanceY", 4, 1, 4, 2, 6.0),
    Sketcher.Constraint("DistanceX", 0, 2, -1, 1, 31.0),
    Sketcher.Constraint("DistanceX", 4, 2, -1, 1, 37.0),
    Sketcher.Constraint("DistanceY", 4, 2, -1, 1, 4.0),
])
pad4 = body.newObject("PartDesign::Pad", "Pad003")
pad4.Profile = sketch7
pad4.Length = 15
pad4.Reversed = True

# Sketch on XY plane
sketch8 = body.newObject("Sketcher::SketchObject", "Sketch007")
sketch8.AttachmentSupport = (doc.getObject("XY_Plane"), [""])
sketch8.MapMode = "FlatFace"
sketch8.AttachmentOffset = App.Placement(App.Vector(0, 0, 2), App.Rotation())
add_polygon(sketch8, [(-30, 18), (-21, 3), (-21, 18)])  # lines 0-2
add_polygon(sketch8, [(21, 3), (30, 18), (21, 18)])  # lines 3-5
sketch8.addConstraint([
    Sketcher.Constraint("Vertical", 1),
    Sketcher.Constraint("Horizontal", 2),
    Sketcher.Constraint("Horizontal", 4),
    Sketcher.Constraint("Vertical", 5),
    Sketcher.Constraint("Symmetric", 2, 2, 3, 2, -2),
    Sketcher.Constraint("Symmetric", 0, 2, 5, 2, -2),
    Sketcher.Constraint("DistanceY", 1, 1, 1, 2, 15.0),
    Sketcher.Constraint("DistanceX", 0, 2, -1, 1, 21.0),
    Sketcher.Constraint("DistanceY", -1, 1, 0, 2, 3.0),
    Sketcher.Constraint("DistanceX", 2, 2, 2, 1, 9.417424),
])
pocket4 = body.newObject("PartDesign::Pocket", "Pocket003")
pocket4.Profile = sketch8
pocket4.Length = 15

# Sketch on YZ plane
sketch9 = body.newObject("Sketcher::SketchObject", "Sketch008")
sketch9.AttachmentSupport = (doc.getObject("YZ_Plane"), [""])
sketch9.MapMode = "FlatFace"
sketch9.AttachmentOffset = App.Placement(App.Vector(0, 0, 33), App.Rotation())
add_polygon(sketch9, [(3, -10), (18, -5), (18, -10)])  # lines 0-2
add_polygon(sketch9, [(18, 10), (18, 5), (3, 10)])  # lines 3-5
sketch9.addConstraint([
    Sketcher.Constraint("Vertical", 1),
    Sketcher.Constraint("Horizontal", 2),
    Sketcher.Constraint("Vertical", 3),
    Sketcher.Constraint("Horizontal", 5),
    Sketcher.Constraint("Symmetric", 0, 2, 3, 2, -1),
    Sketcher.Constraint("Symmetric", 2, 2, 4, 2, -1),
    Sketcher.Constraint("DistanceX", 2, 2, 2, 1, 15.0),
    Sketcher.Constraint("DistanceX", -1, 1, 0, 2, 18.0),
    Sketcher.Constraint("DistanceY", 1, 2, -1, 1, 10.0),
    Sketcher.Constraint("DistanceY", 1, 2, 1, 1, 5.417424),
])
pocket5 = body.newObject("PartDesign::Pocket", "Pocket004")
pocket5.Profile = sketch9
pocket5.Length = 15
pocket5.Reversed = True

# Sketch on YZ plane
sketch10 = body.newObject("Sketcher::SketchObject", "Sketch009")
sketch10.AttachmentSupport = (doc.getObject("YZ_Plane"), [""])
sketch10.MapMode = "FlatFace"
sketch10.AttachmentOffset = App.Placement(App.Vector(0, 0, -33), App.Rotation())
add_polygon(sketch10, [(3, 10), (18, 5), (18, 10)])  # lines 0-2
add_polygon(sketch10, [(18, -5), (3, -10), (18, -10)])  # lines 3-5
sketch10.addConstraint([
    Sketcher.Constraint("Vertical", 1),
    Sketcher.Constraint("Horizontal", 2),
    Sketcher.Constraint("Horizontal", 4),
    Sketcher.Constraint("Vertical", 5),
    Sketcher.Constraint("Symmetric", 2, 2, 3, 2, -1),
    Sketcher.Constraint("Symmetric", 0, 2, 5, 2, -1),
    Sketcher.Constraint("DistanceX", 2, 2, 2, 1, 15.0),
    Sketcher.Constraint("DistanceX", -1, 1, 0, 2, 18.0),
    Sketcher.Constraint("DistanceY", -1, 1, 1, 2, 10.0),
    Sketcher.Constraint("DistanceY", 1, 1, 1, 2, 5.417424),
])
pocket6 = body.newObject("PartDesign::Pocket", "Pocket005")
pocket6.Profile = sketch10
pocket6.Length = 15

# Sketch on XZ plane
sketch11 = body.newObject("Sketcher::SketchObject", "Sketch010")
sketch11.AttachmentSupport = (doc.getObject("XZ_Plane"), [""])
sketch11.MapMode = "FlatFace"
sketch11.AttachmentOffset = App.Placement(App.Vector(0, 0, -3), App.Rotation())
add_polygon(sketch11, [(-33, 4.6), (-33, 7.4), (-7.4, 7.4), (-7.4, 4.6)])  # lines 0-3
add_polygon(sketch11, [(-33, -7.4), (-33, -4.6), (-7.4, -4.6), (-7.4, -7.4)])  # lines 4-7
add_polygon(sketch11, [(7.4, -7.4), (7.4, -4.6), (33, -4.6), (33, -7.4)])  # lines 8-11
add_polygon(sketch11, [(7.4, 4.6), (7.4, 7.4), (33, 7.4), (33, 4.6)])  # lines 12-15
sketch11.addConstraint([
    Sketcher.Constraint("Vertical", 0),
    Sketcher.Constraint("Horizontal", 1),
    Sketcher.Constraint("Vertical", 2),
    Sketcher.Constraint("Horizontal", 3),
    Sketcher.Constraint("Vertical", 4),
    Sketcher.Constraint("Horizontal", 5),
    Sketcher.Constraint("Vertical", 6),
    Sketcher.Constraint("Horizontal", 7),
    Sketcher.Constraint("Vertical", 8),
    Sketcher.Constraint("Horizontal", 9),
    Sketcher.Constraint("Vertical", 10),
    Sketcher.Constraint("Horizontal", 11),
    Sketcher.Constraint("Vertical", 12),
    Sketcher.Constraint("Horizontal", 13),
    Sketcher.Constraint("Vertical", 14),
    Sketcher.Constraint("Horizontal", 15),
    Sketcher.Constraint("Symmetric", 2, 2, 8, 2, -1, 1),
    Sketcher.Constraint("Symmetric", 0, 2, 10, 2, -1, 1),
    Sketcher.Constraint("Symmetric", 6, 2, 12, 2, -1, 1),
    Sketcher.Constraint("Symmetric", 4, 2, 14, 2, -1, 1),
    Sketcher.Constraint("Symmetric", 5, 2, 8, 2, -2),
    Sketcher.Constraint("Symmetric", 7, 2, 10, 2, -2),
    Sketcher.Constraint("DistanceX", 0, 2, -1, 1, 33.0),
    Sketcher.Constraint("DistanceX", 1, 1, 1, 2, 25.575379),
    Sketcher.Constraint("DistanceY", 0, 1, 0, 2, 2.842046),
    Sketcher.Constraint("DistanceY", -1, 1, 0, 2, 7.424621),
])
pad5 = body.newObject("PartDesign::Pad", "Pad004")
pad5.Profile = sketch11
pad5.Length = 7
pad5.Reversed = True

doc.recompute()
